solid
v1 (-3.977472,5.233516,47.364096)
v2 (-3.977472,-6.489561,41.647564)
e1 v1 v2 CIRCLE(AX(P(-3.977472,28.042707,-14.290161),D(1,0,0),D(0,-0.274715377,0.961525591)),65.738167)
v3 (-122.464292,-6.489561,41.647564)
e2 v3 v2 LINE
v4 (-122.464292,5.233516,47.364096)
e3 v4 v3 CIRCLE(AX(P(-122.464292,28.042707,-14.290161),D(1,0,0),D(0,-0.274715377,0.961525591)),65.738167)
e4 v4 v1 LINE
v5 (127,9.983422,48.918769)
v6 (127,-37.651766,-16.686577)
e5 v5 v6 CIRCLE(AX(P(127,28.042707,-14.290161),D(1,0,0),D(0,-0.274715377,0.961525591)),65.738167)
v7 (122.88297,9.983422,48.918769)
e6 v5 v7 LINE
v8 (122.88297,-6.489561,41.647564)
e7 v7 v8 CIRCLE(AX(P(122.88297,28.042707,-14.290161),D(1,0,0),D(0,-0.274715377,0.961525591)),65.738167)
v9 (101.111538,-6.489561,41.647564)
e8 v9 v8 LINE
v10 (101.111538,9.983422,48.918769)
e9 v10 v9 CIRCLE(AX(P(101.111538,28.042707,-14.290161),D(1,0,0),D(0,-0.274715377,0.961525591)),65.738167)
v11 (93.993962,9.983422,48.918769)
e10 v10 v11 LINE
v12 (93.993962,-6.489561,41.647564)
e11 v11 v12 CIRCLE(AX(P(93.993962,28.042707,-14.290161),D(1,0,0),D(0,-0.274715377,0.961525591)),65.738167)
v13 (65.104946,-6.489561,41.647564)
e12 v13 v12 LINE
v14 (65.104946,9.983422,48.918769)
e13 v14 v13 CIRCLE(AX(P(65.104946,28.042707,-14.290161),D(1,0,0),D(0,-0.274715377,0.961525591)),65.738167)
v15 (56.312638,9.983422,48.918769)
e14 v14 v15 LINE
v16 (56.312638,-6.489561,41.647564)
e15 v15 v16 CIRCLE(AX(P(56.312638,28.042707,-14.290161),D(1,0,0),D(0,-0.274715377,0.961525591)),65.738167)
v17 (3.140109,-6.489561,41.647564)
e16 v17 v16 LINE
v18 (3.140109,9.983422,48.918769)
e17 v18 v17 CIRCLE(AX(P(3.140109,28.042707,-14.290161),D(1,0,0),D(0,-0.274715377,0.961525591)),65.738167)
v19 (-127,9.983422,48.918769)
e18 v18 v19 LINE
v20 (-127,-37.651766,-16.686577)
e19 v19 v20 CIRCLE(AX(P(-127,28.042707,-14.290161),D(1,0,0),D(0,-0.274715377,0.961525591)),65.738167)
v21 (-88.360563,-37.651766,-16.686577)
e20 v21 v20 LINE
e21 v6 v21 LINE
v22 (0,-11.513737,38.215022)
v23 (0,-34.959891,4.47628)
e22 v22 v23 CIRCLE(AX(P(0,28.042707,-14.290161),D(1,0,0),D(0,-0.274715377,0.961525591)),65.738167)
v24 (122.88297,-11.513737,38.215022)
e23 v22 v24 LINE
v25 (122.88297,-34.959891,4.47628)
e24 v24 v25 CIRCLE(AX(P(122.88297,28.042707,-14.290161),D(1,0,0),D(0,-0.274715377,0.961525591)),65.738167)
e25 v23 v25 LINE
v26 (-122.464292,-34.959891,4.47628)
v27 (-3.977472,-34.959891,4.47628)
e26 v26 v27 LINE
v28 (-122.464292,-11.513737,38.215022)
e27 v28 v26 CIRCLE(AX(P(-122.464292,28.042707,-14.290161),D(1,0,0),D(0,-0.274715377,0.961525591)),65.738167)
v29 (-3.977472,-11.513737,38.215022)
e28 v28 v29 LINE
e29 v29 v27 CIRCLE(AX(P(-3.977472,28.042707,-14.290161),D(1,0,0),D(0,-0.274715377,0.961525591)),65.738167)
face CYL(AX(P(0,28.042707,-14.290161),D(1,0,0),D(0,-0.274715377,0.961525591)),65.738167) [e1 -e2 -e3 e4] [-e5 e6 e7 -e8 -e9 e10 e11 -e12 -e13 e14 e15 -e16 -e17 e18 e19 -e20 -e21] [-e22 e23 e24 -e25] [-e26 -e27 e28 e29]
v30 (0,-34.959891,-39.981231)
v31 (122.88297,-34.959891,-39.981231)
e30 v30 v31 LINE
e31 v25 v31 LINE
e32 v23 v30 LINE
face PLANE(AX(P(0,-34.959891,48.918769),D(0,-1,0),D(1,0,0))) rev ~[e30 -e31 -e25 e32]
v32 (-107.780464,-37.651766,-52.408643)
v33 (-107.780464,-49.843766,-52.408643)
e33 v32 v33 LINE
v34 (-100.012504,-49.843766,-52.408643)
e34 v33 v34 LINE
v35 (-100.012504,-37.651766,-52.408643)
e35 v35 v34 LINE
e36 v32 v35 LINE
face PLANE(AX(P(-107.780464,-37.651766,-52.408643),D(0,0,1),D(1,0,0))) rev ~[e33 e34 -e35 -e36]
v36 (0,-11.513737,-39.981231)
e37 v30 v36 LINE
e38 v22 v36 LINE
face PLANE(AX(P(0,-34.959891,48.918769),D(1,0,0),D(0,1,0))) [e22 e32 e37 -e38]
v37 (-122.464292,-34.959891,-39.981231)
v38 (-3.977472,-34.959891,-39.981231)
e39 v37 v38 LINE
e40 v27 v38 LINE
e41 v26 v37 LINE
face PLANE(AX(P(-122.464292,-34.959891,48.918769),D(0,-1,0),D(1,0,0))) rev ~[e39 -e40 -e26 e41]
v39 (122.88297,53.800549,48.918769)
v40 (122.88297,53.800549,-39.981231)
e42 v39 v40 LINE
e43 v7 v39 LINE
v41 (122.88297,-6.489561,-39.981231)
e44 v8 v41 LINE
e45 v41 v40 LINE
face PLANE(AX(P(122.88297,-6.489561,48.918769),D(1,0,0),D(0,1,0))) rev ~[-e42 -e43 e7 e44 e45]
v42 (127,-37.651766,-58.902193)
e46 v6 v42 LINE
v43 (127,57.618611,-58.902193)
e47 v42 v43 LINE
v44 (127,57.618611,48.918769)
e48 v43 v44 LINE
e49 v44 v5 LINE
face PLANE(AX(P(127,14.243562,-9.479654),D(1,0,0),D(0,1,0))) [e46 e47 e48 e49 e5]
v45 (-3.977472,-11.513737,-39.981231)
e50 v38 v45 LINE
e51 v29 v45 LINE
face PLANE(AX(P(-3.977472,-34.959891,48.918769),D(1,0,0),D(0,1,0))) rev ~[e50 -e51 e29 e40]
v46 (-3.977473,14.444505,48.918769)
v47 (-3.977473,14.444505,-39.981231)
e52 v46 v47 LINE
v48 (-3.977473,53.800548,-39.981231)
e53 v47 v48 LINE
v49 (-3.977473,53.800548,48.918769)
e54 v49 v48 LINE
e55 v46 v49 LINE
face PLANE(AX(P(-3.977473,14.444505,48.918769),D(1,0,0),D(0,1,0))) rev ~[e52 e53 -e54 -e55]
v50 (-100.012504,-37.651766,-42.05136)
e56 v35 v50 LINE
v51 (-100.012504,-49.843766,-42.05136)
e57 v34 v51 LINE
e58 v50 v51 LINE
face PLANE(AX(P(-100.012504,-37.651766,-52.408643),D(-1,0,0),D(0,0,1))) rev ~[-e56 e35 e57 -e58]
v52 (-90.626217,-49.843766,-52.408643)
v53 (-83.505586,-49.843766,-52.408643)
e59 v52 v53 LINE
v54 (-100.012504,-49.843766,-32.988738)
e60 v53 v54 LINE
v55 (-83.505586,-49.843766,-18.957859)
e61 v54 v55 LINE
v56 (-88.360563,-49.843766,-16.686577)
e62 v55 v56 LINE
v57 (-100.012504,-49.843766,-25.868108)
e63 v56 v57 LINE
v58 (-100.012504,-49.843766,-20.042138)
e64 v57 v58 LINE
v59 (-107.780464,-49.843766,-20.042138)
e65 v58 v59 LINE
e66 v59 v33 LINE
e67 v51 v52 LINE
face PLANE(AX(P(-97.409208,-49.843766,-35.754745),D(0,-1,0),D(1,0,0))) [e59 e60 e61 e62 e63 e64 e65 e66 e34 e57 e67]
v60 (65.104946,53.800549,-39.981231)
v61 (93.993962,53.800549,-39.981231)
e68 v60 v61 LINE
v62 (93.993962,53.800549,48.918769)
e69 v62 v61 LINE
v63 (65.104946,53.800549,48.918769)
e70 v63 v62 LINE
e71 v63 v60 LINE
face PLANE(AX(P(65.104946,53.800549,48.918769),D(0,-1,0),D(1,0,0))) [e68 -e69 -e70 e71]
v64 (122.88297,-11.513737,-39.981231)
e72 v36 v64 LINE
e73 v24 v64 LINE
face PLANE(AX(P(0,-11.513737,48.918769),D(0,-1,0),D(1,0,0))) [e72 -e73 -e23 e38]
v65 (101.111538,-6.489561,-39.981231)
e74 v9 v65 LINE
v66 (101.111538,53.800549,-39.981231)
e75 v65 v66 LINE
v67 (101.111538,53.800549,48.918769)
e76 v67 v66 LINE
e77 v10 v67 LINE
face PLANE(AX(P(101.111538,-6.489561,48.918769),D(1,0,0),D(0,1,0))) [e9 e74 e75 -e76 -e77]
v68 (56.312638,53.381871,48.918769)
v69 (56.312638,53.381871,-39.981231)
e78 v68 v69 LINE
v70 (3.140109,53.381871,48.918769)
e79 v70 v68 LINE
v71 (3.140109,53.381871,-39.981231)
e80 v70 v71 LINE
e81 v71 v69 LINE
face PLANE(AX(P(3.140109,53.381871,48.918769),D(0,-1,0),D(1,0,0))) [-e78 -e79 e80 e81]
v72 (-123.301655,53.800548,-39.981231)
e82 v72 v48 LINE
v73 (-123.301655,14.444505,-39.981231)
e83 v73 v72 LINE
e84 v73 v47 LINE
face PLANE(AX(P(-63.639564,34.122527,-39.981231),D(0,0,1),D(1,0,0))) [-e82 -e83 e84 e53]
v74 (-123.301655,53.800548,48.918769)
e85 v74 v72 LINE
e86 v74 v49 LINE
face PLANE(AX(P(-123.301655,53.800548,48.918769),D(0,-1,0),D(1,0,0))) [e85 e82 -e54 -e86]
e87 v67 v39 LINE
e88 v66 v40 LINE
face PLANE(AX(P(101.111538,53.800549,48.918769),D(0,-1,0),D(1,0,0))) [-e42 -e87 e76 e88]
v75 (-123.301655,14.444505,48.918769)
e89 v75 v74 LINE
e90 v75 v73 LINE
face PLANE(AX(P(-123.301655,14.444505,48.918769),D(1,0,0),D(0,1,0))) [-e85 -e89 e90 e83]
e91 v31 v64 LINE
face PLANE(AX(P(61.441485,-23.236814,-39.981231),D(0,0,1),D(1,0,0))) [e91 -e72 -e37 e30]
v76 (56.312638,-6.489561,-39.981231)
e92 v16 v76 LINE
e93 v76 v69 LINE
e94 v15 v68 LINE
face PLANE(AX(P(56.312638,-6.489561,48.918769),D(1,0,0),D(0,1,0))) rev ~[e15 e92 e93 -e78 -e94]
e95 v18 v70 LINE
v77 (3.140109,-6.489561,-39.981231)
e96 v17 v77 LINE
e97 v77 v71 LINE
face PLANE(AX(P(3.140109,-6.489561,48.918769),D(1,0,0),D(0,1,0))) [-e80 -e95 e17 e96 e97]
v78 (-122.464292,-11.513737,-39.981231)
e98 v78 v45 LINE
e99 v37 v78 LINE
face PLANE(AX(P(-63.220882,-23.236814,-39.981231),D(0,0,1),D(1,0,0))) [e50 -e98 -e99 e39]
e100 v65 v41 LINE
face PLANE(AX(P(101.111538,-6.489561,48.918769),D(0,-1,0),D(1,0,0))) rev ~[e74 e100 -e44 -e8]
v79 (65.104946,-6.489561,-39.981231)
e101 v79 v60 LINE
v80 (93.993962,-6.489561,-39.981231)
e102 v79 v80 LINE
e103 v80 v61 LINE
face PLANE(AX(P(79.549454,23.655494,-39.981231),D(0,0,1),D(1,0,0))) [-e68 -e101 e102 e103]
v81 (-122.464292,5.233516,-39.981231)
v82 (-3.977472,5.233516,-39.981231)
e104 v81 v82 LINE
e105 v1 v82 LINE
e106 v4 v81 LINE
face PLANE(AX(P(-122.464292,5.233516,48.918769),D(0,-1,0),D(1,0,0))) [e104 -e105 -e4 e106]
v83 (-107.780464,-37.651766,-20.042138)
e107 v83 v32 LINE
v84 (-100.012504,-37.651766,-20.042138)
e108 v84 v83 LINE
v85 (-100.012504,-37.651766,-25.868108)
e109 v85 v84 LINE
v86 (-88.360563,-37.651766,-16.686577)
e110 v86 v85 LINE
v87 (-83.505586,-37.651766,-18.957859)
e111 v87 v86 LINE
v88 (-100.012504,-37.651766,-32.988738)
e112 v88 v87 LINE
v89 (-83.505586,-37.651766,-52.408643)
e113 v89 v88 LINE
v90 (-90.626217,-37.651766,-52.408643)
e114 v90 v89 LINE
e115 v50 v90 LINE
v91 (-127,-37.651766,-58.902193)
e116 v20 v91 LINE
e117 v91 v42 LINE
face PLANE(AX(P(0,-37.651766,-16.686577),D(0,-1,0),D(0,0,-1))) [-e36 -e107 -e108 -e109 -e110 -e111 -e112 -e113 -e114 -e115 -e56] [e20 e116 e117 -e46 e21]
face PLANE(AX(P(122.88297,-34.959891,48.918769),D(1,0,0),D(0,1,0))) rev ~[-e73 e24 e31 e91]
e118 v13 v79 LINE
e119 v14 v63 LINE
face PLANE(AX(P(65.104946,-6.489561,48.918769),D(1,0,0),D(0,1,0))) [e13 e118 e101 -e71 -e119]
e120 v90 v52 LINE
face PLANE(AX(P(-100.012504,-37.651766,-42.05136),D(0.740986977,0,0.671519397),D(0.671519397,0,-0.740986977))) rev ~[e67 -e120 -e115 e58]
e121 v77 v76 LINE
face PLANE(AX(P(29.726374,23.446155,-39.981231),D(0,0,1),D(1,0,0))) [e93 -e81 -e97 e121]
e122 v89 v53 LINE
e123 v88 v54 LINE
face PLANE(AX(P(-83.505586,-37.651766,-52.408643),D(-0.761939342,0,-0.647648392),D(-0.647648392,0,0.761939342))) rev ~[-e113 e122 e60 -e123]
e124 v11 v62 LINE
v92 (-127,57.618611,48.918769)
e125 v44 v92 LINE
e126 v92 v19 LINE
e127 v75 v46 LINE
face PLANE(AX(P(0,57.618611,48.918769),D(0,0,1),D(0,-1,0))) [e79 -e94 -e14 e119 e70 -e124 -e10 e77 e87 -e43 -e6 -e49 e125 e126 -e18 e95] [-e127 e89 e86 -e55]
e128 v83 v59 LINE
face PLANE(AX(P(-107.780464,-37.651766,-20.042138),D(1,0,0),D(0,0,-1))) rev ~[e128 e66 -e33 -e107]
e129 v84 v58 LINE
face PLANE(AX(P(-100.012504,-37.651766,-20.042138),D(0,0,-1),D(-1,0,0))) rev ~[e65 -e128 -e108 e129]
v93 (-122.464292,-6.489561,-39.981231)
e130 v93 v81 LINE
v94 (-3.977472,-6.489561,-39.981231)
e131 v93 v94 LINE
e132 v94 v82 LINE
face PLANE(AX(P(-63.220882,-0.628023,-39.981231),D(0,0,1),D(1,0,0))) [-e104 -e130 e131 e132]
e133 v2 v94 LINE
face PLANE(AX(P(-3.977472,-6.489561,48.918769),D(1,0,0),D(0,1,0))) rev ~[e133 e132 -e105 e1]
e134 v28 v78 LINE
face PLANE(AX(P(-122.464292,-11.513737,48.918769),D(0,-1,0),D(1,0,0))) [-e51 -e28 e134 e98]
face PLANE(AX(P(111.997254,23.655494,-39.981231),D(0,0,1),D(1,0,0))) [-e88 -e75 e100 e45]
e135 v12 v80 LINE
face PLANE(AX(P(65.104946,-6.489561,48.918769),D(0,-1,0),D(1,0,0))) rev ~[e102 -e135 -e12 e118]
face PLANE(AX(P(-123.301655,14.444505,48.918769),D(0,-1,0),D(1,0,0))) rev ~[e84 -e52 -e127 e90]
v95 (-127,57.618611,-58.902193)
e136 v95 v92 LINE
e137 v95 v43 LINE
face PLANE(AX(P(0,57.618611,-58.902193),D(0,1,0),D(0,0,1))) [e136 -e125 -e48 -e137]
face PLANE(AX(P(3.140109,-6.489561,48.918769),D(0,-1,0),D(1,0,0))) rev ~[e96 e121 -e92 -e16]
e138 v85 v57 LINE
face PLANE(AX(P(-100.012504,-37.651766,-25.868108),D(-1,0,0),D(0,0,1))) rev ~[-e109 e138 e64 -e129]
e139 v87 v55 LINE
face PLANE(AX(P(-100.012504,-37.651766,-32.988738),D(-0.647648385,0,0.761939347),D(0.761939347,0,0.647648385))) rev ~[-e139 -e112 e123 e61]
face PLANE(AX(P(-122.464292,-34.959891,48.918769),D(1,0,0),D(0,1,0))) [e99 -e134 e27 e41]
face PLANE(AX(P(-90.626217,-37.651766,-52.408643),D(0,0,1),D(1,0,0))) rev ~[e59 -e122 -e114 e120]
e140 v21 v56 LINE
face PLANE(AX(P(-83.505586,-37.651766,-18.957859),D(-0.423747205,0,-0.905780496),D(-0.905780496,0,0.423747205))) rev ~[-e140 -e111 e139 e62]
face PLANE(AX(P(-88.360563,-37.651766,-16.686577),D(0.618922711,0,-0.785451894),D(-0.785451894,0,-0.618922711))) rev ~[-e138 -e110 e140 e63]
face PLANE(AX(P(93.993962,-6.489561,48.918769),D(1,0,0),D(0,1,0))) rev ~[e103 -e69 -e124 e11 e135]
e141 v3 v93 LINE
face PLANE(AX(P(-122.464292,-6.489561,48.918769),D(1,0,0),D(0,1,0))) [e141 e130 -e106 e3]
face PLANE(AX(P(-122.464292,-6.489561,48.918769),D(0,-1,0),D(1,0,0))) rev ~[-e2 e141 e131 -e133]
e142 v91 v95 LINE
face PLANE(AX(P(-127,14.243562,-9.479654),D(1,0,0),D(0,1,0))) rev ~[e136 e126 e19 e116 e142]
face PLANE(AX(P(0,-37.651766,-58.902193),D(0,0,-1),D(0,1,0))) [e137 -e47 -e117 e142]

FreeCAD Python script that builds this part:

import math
import FreeCAD as App
import Part
import Sketcher
from FreeCAD import Vector
Q = App.Units.Quantity


def add_polygon(sketch, points):
    """Adds a closed chain of lines whose ends are joined by coincident constraints."""
    first, n = sketch.GeometryCount, len(points)
    for a, b in zip(points, points[1:] + points[:1]):
        sketch.addGeometry(Part.LineSegment(App.Vector(*a, 0), App.Vector(*b, 0)), False)
    for i in range(n):
        sketch.addConstraint(Sketcher.Constraint("Coincident", first + i, 2, first + (i + 1) % n, 1))

doc = App.newDocument("Part")
body = doc.addObject("PartDesign::Body", "Body")

# Sketch on YZ plane
sketch1 = doc.addObject("Sketcher::SketchObject", "Sketch")
body.addObject(sketch1)
sketch1.AttachmentSupport = (doc.YZ_Plane, [""])
sketch1.MapMode = "FlatFace"
sketch1.addGeometry([
    Part.LineSegment(Vector(-38, -17, 0), Vector(-38, -59, 0)),  # 0
    Part.LineSegment(Vector(-38, -59, 0), Vector(58, -59, 0)),  # 1
    Part.LineSegment(Vector(58, -59, 0), Vector(58, 49, 0)),  # 2
    Part.LineSegment(Vector(58, 49, 0), Vector(10, 49, 0)),  # 3
    Part.ArcOfCircle(Part.Circle(Vector(28, -14, 0), Vector(0, 0, 1), 66), math.radians(106), math.radians(182)),  # 4
], False)
sketch1.addConstraint([
    Sketcher.Constraint("Coincident", 0, 2, 1, 1),
    Sketcher.Constraint("Coincident", 1, 2, 2, 1),
    Sketcher.Constraint("Coincident", 2, 2, 3, 1),
    Sketcher.Constraint("Coincident", 3, 2, 4, 1),
    Sketcher.Constraint("Coincident", 4, 2, 0, 1),
    Sketcher.Constraint("Vertical", 0),
    Sketcher.Constraint("Horizontal", 1),
    Sketcher.Constraint("Vertical", 2),
    Sketcher.Constraint("Horizontal", 3),
    Sketcher.Constraint("Radius", 4, 65.738167),
    Sketcher.Constraint("DistanceX", 3, 2, 3, 1, 47.635189),
    Sketcher.Constraint("DistanceY", 2, 1, 2, 2, 107.820962),
    Sketcher.Constraint("DistanceX", 1, 1, 1, 2, 95.270377),
    Sketcher.Constraint("DistanceY", 0, 2, 0, 1, 42.215616),
    Sketcher.Constraint("DistanceY", 4, 3, -1, 1, 14.290161),
    Sketcher.Constraint("DistanceX", -1, 1, 1, 2, 57.618611),
])
pad1 = doc.addObject("PartDesign::Pad", "Pad")
body.addObject(pad1)
pad1.Profile = sketch1
pad1.Length = Q("10 in")
pad1.Midplane = True

# Sketch on XY plane
sketch2 = doc.addObject("Sketcher::SketchObject", "Sketch001")
body.addObject(sketch2)
sketch2.AttachmentSupport = (doc.XY_Plane, [""])
sketch2.MapMode = "FlatFace"
sketch2.AttachmentOffset = App.Placement(Vector(0, 0, 48.918769), App.Rotation())
add_polygon(sketch2, [(-123, 54), (-123, 14), (-4, 14), (-4, 54)])  # lines 0-3
add_polygon(sketch2, [(-122, 5), (-122, -6), (-4, -6), (-4, 5)])  # lines 4-7
add_polygon(sketch2, [(-122, -12), (-122, -35), (-4, -35), (-4, -12)])  # lines 8-11
add_polygon(sketch2, [(0, -12), (0, -35), (123, -35), (123, -12)])  # lines 12-15
add_polygon(sketch2, [(101, 54), (101, -6), (123, -6), (123, 54)])  # lines 16-19
add_polygon(sketch2, [(65, 54), (65, -6), (94, -6), (94, 54)])  # lines 20-23
add_polygon(sketch2, [(3, 53), (3, -6), (56, -6), (56, 53)])  # lines 24-27
sketch2.addConstraint([
    Sketcher.Constraint("Vertical", 0),
    Sketcher.Constraint("Horizontal", 1),
    Sketcher.Constraint("Vertical", 2),
    Sketcher.Constraint("Horizontal", 3),
    Sketcher.Constraint("Vertical", 4),
    Sketcher.Constraint("Horizontal", 5),
    Sketcher.Constraint("Vertical", 6),
    Sketcher.Constraint("Horizontal", 7),
    Sketcher.Constraint("Vertical", 8),
    Sketcher.Constraint("Horizontal", 9),
    Sketcher.Constraint("Vertical", 10),
    Sketcher.Constraint("Horizontal", 11),
    Sketcher.Constraint("Vertical", 12),
    Sketcher.Constraint("Horizontal", 13),
    Sketcher.Constraint("Vertical", 14),
    Sketcher.Constraint("Horizontal", 15),
    Sketcher.Constraint("Vertical", 16),
    Sketcher.Constraint("Horizontal", 17),
    Sketcher.Constraint("Vertical", 18),
    Sketcher.Constraint("Horizontal", 19),
    Sketcher.Constraint("Vertical", 20),
    Sketcher.Constraint("Horizontal", 21),
    Sketcher.Constraint("Vertical", 22),
    Sketcher.Constraint("Horizontal", 23),
    Sketcher.Constraint("Vertical", 24),
    Sketcher.Constraint("Horizontal", 25),
    Sketcher.Constraint("Vertical", 26),
    Sketcher.Constraint("Horizontal", 27),
    Sketcher.Constraint("PointOnObject", 12, 2, -2),
    Sketcher.Constraint("Horizontal", 9, 2, 12, 2),
    Sketcher.Constraint("Horizontal", 11, 2, 14, 2),
    Sketcher.Constraint("Horizontal", 5, 2, 16, 2),
    Sketcher.Constraint("Horizontal", 3, 2, 18, 2),
    Sketcher.Constraint("Horizontal", 17, 2, 20, 2),
    Sketcher.Constraint("Horizontal", 19, 2, 22, 2),
    Sketcher.Constraint("Horizontal", 21, 2, 24, 2),
    Sketcher.Constraint("Vertical", 2, 2, 5, 2),
    Sketcher.Constraint("Vertical", 7, 2, 8, 2),
    Sketcher.Constraint("Vertical", 6, 2, 9, 2),
    Sketcher.Constraint("Vertical", 14, 2, 17, 2),
    Sketcher.Constraint("DistanceX", 5, 1, 5, 2, 118.48682),
    Sketcher.Constraint("DistanceX", 13, 1, 13, 2, 122.88297),
    Sketcher.Constraint("DistanceX", 17, 1, 17, 2, 21.771431),
    Sketcher.Constraint("DistanceX", 25, 1, 25, 2, 53.172529),
    Sketcher.Constraint("DistanceY", 16, 2, 16, 1, 60.29011),
    Sketcher.Constraint("DistanceX", 25, 2, 16, 2, 44.7989),
    Sketcher.Constraint("DistanceX", 1, 1, 1, 2, 119.324183),
    Sketcher.Constraint("DistanceX", 21, 1, 21, 2, 28.889016),
    Sketcher.Constraint("DistanceY", 0, 2, 0, 1, 39.356043),
    Sketcher.Constraint("DistanceY", 4, 2, 4, 1, 11.723077),
    Sketcher.Constraint("DistanceY", 8, 2, 8, 1, 23.446153),
    Sketcher.Constraint("DistanceY", 24, 2, 24, 1, 59.871432),
    Sketcher.Constraint("DistanceY", -1, 1, 2, 2, 53.800548),
    Sketcher.Constraint("DistanceX", 4, 2, -1, 1, 122.464292),
    Sketcher.Constraint("DistanceY", 8, 2, -1, 1, 34.959891),
    Sketcher.Constraint("DistanceX", -1, 1, 21, 2, 93.993962),
])
pocket1 = doc.addObject("PartDesign::Pocket", "Pocket")
body.addObject(pocket1)
pocket1.Profile = sketch2
pocket1.Length = Q("3.5 in")

# Sketch on XZ plane
sketch3 = doc.addObject("Sketcher::SketchObject", "Sketch002")
body.addObject(sketch3)
sketch3.AttachmentSupport = (doc.XZ_Plane, [""])
sketch3.MapMode = "FlatFace"
sketch3.AttachmentOffset = App.Placement(Vector(0, 0, 37.651766), App.Rotation())
add_polygon(sketch3, [(-100, -20), (-108, -20), (-108, -52), (-100, -52), (-100, -42), (-91, -52), (-84, -52), (-100, -33), (-84, -19), (-88, -17), (-100, -26)])  # lines 0-10
sketch3.addConstraint([
    Sketcher.Constraint("Horizontal", 0),
    Sketcher.Constraint("Vertical", 1),
    Sketcher.Constraint("Horizontal", 2),
    Sketcher.Constraint("Vertical", 3),
    Sketcher.Constraint("Horizontal", 5),
    Sketcher.Constraint("Vertical", 10),
    Sketcher.Constraint("Perpendicular", 6, 7),
    Sketcher.Constraint("Horizontal", 2, 2, 4, 2),
    Sketcher.Constraint("Vertical", 3, 2, 6, 2),
    Sketcher.Constraint("Vertical", 5, 2, 7, 2),
    Sketcher.Constraint("Vertical", 6, 2, 9, 2),
    Sketcher.Constraint("DistanceX", 2, 2, -1, 1, Q("3.9375002 in")),
    Sketcher.Constraint("DistanceX", 0, 2, 0, 1, 7.76796),
    Sketcher.Constraint("DistanceX", 5, 1, 5, 2, 7.120631),
    Sketcher.Constraint("DistanceY", 10, 1, 10, 2, 5.82597),
    Sketcher.Constraint("DistanceY", 6, 2, 0, 2, 12.9466),
    Sketcher.Constraint("DistanceY", 3, 2, 7, 2, 23.093501),
    Sketcher.Constraint("DistanceX", 0, 2, 8, 2, 19.419901),
    Sketcher.Constraint("Distance", 6, 25.487469),
    Sketcher.Constraint("DistanceY", 1, 2, 1, 1, 32.366505),
    Sketcher.Constraint("DistanceY", 0, 2, -1, 1, 20.042138),
    Sketcher.Constraint("DistanceY", 7, 2, 8, 2, 2.271282),
])
pad2 = doc.addObject("PartDesign::Pad", "Pad001")
body.addObject(pad2)
pad2.Profile = sketch3
pad2.Length = Q("0.48 in")

doc.recompute()
